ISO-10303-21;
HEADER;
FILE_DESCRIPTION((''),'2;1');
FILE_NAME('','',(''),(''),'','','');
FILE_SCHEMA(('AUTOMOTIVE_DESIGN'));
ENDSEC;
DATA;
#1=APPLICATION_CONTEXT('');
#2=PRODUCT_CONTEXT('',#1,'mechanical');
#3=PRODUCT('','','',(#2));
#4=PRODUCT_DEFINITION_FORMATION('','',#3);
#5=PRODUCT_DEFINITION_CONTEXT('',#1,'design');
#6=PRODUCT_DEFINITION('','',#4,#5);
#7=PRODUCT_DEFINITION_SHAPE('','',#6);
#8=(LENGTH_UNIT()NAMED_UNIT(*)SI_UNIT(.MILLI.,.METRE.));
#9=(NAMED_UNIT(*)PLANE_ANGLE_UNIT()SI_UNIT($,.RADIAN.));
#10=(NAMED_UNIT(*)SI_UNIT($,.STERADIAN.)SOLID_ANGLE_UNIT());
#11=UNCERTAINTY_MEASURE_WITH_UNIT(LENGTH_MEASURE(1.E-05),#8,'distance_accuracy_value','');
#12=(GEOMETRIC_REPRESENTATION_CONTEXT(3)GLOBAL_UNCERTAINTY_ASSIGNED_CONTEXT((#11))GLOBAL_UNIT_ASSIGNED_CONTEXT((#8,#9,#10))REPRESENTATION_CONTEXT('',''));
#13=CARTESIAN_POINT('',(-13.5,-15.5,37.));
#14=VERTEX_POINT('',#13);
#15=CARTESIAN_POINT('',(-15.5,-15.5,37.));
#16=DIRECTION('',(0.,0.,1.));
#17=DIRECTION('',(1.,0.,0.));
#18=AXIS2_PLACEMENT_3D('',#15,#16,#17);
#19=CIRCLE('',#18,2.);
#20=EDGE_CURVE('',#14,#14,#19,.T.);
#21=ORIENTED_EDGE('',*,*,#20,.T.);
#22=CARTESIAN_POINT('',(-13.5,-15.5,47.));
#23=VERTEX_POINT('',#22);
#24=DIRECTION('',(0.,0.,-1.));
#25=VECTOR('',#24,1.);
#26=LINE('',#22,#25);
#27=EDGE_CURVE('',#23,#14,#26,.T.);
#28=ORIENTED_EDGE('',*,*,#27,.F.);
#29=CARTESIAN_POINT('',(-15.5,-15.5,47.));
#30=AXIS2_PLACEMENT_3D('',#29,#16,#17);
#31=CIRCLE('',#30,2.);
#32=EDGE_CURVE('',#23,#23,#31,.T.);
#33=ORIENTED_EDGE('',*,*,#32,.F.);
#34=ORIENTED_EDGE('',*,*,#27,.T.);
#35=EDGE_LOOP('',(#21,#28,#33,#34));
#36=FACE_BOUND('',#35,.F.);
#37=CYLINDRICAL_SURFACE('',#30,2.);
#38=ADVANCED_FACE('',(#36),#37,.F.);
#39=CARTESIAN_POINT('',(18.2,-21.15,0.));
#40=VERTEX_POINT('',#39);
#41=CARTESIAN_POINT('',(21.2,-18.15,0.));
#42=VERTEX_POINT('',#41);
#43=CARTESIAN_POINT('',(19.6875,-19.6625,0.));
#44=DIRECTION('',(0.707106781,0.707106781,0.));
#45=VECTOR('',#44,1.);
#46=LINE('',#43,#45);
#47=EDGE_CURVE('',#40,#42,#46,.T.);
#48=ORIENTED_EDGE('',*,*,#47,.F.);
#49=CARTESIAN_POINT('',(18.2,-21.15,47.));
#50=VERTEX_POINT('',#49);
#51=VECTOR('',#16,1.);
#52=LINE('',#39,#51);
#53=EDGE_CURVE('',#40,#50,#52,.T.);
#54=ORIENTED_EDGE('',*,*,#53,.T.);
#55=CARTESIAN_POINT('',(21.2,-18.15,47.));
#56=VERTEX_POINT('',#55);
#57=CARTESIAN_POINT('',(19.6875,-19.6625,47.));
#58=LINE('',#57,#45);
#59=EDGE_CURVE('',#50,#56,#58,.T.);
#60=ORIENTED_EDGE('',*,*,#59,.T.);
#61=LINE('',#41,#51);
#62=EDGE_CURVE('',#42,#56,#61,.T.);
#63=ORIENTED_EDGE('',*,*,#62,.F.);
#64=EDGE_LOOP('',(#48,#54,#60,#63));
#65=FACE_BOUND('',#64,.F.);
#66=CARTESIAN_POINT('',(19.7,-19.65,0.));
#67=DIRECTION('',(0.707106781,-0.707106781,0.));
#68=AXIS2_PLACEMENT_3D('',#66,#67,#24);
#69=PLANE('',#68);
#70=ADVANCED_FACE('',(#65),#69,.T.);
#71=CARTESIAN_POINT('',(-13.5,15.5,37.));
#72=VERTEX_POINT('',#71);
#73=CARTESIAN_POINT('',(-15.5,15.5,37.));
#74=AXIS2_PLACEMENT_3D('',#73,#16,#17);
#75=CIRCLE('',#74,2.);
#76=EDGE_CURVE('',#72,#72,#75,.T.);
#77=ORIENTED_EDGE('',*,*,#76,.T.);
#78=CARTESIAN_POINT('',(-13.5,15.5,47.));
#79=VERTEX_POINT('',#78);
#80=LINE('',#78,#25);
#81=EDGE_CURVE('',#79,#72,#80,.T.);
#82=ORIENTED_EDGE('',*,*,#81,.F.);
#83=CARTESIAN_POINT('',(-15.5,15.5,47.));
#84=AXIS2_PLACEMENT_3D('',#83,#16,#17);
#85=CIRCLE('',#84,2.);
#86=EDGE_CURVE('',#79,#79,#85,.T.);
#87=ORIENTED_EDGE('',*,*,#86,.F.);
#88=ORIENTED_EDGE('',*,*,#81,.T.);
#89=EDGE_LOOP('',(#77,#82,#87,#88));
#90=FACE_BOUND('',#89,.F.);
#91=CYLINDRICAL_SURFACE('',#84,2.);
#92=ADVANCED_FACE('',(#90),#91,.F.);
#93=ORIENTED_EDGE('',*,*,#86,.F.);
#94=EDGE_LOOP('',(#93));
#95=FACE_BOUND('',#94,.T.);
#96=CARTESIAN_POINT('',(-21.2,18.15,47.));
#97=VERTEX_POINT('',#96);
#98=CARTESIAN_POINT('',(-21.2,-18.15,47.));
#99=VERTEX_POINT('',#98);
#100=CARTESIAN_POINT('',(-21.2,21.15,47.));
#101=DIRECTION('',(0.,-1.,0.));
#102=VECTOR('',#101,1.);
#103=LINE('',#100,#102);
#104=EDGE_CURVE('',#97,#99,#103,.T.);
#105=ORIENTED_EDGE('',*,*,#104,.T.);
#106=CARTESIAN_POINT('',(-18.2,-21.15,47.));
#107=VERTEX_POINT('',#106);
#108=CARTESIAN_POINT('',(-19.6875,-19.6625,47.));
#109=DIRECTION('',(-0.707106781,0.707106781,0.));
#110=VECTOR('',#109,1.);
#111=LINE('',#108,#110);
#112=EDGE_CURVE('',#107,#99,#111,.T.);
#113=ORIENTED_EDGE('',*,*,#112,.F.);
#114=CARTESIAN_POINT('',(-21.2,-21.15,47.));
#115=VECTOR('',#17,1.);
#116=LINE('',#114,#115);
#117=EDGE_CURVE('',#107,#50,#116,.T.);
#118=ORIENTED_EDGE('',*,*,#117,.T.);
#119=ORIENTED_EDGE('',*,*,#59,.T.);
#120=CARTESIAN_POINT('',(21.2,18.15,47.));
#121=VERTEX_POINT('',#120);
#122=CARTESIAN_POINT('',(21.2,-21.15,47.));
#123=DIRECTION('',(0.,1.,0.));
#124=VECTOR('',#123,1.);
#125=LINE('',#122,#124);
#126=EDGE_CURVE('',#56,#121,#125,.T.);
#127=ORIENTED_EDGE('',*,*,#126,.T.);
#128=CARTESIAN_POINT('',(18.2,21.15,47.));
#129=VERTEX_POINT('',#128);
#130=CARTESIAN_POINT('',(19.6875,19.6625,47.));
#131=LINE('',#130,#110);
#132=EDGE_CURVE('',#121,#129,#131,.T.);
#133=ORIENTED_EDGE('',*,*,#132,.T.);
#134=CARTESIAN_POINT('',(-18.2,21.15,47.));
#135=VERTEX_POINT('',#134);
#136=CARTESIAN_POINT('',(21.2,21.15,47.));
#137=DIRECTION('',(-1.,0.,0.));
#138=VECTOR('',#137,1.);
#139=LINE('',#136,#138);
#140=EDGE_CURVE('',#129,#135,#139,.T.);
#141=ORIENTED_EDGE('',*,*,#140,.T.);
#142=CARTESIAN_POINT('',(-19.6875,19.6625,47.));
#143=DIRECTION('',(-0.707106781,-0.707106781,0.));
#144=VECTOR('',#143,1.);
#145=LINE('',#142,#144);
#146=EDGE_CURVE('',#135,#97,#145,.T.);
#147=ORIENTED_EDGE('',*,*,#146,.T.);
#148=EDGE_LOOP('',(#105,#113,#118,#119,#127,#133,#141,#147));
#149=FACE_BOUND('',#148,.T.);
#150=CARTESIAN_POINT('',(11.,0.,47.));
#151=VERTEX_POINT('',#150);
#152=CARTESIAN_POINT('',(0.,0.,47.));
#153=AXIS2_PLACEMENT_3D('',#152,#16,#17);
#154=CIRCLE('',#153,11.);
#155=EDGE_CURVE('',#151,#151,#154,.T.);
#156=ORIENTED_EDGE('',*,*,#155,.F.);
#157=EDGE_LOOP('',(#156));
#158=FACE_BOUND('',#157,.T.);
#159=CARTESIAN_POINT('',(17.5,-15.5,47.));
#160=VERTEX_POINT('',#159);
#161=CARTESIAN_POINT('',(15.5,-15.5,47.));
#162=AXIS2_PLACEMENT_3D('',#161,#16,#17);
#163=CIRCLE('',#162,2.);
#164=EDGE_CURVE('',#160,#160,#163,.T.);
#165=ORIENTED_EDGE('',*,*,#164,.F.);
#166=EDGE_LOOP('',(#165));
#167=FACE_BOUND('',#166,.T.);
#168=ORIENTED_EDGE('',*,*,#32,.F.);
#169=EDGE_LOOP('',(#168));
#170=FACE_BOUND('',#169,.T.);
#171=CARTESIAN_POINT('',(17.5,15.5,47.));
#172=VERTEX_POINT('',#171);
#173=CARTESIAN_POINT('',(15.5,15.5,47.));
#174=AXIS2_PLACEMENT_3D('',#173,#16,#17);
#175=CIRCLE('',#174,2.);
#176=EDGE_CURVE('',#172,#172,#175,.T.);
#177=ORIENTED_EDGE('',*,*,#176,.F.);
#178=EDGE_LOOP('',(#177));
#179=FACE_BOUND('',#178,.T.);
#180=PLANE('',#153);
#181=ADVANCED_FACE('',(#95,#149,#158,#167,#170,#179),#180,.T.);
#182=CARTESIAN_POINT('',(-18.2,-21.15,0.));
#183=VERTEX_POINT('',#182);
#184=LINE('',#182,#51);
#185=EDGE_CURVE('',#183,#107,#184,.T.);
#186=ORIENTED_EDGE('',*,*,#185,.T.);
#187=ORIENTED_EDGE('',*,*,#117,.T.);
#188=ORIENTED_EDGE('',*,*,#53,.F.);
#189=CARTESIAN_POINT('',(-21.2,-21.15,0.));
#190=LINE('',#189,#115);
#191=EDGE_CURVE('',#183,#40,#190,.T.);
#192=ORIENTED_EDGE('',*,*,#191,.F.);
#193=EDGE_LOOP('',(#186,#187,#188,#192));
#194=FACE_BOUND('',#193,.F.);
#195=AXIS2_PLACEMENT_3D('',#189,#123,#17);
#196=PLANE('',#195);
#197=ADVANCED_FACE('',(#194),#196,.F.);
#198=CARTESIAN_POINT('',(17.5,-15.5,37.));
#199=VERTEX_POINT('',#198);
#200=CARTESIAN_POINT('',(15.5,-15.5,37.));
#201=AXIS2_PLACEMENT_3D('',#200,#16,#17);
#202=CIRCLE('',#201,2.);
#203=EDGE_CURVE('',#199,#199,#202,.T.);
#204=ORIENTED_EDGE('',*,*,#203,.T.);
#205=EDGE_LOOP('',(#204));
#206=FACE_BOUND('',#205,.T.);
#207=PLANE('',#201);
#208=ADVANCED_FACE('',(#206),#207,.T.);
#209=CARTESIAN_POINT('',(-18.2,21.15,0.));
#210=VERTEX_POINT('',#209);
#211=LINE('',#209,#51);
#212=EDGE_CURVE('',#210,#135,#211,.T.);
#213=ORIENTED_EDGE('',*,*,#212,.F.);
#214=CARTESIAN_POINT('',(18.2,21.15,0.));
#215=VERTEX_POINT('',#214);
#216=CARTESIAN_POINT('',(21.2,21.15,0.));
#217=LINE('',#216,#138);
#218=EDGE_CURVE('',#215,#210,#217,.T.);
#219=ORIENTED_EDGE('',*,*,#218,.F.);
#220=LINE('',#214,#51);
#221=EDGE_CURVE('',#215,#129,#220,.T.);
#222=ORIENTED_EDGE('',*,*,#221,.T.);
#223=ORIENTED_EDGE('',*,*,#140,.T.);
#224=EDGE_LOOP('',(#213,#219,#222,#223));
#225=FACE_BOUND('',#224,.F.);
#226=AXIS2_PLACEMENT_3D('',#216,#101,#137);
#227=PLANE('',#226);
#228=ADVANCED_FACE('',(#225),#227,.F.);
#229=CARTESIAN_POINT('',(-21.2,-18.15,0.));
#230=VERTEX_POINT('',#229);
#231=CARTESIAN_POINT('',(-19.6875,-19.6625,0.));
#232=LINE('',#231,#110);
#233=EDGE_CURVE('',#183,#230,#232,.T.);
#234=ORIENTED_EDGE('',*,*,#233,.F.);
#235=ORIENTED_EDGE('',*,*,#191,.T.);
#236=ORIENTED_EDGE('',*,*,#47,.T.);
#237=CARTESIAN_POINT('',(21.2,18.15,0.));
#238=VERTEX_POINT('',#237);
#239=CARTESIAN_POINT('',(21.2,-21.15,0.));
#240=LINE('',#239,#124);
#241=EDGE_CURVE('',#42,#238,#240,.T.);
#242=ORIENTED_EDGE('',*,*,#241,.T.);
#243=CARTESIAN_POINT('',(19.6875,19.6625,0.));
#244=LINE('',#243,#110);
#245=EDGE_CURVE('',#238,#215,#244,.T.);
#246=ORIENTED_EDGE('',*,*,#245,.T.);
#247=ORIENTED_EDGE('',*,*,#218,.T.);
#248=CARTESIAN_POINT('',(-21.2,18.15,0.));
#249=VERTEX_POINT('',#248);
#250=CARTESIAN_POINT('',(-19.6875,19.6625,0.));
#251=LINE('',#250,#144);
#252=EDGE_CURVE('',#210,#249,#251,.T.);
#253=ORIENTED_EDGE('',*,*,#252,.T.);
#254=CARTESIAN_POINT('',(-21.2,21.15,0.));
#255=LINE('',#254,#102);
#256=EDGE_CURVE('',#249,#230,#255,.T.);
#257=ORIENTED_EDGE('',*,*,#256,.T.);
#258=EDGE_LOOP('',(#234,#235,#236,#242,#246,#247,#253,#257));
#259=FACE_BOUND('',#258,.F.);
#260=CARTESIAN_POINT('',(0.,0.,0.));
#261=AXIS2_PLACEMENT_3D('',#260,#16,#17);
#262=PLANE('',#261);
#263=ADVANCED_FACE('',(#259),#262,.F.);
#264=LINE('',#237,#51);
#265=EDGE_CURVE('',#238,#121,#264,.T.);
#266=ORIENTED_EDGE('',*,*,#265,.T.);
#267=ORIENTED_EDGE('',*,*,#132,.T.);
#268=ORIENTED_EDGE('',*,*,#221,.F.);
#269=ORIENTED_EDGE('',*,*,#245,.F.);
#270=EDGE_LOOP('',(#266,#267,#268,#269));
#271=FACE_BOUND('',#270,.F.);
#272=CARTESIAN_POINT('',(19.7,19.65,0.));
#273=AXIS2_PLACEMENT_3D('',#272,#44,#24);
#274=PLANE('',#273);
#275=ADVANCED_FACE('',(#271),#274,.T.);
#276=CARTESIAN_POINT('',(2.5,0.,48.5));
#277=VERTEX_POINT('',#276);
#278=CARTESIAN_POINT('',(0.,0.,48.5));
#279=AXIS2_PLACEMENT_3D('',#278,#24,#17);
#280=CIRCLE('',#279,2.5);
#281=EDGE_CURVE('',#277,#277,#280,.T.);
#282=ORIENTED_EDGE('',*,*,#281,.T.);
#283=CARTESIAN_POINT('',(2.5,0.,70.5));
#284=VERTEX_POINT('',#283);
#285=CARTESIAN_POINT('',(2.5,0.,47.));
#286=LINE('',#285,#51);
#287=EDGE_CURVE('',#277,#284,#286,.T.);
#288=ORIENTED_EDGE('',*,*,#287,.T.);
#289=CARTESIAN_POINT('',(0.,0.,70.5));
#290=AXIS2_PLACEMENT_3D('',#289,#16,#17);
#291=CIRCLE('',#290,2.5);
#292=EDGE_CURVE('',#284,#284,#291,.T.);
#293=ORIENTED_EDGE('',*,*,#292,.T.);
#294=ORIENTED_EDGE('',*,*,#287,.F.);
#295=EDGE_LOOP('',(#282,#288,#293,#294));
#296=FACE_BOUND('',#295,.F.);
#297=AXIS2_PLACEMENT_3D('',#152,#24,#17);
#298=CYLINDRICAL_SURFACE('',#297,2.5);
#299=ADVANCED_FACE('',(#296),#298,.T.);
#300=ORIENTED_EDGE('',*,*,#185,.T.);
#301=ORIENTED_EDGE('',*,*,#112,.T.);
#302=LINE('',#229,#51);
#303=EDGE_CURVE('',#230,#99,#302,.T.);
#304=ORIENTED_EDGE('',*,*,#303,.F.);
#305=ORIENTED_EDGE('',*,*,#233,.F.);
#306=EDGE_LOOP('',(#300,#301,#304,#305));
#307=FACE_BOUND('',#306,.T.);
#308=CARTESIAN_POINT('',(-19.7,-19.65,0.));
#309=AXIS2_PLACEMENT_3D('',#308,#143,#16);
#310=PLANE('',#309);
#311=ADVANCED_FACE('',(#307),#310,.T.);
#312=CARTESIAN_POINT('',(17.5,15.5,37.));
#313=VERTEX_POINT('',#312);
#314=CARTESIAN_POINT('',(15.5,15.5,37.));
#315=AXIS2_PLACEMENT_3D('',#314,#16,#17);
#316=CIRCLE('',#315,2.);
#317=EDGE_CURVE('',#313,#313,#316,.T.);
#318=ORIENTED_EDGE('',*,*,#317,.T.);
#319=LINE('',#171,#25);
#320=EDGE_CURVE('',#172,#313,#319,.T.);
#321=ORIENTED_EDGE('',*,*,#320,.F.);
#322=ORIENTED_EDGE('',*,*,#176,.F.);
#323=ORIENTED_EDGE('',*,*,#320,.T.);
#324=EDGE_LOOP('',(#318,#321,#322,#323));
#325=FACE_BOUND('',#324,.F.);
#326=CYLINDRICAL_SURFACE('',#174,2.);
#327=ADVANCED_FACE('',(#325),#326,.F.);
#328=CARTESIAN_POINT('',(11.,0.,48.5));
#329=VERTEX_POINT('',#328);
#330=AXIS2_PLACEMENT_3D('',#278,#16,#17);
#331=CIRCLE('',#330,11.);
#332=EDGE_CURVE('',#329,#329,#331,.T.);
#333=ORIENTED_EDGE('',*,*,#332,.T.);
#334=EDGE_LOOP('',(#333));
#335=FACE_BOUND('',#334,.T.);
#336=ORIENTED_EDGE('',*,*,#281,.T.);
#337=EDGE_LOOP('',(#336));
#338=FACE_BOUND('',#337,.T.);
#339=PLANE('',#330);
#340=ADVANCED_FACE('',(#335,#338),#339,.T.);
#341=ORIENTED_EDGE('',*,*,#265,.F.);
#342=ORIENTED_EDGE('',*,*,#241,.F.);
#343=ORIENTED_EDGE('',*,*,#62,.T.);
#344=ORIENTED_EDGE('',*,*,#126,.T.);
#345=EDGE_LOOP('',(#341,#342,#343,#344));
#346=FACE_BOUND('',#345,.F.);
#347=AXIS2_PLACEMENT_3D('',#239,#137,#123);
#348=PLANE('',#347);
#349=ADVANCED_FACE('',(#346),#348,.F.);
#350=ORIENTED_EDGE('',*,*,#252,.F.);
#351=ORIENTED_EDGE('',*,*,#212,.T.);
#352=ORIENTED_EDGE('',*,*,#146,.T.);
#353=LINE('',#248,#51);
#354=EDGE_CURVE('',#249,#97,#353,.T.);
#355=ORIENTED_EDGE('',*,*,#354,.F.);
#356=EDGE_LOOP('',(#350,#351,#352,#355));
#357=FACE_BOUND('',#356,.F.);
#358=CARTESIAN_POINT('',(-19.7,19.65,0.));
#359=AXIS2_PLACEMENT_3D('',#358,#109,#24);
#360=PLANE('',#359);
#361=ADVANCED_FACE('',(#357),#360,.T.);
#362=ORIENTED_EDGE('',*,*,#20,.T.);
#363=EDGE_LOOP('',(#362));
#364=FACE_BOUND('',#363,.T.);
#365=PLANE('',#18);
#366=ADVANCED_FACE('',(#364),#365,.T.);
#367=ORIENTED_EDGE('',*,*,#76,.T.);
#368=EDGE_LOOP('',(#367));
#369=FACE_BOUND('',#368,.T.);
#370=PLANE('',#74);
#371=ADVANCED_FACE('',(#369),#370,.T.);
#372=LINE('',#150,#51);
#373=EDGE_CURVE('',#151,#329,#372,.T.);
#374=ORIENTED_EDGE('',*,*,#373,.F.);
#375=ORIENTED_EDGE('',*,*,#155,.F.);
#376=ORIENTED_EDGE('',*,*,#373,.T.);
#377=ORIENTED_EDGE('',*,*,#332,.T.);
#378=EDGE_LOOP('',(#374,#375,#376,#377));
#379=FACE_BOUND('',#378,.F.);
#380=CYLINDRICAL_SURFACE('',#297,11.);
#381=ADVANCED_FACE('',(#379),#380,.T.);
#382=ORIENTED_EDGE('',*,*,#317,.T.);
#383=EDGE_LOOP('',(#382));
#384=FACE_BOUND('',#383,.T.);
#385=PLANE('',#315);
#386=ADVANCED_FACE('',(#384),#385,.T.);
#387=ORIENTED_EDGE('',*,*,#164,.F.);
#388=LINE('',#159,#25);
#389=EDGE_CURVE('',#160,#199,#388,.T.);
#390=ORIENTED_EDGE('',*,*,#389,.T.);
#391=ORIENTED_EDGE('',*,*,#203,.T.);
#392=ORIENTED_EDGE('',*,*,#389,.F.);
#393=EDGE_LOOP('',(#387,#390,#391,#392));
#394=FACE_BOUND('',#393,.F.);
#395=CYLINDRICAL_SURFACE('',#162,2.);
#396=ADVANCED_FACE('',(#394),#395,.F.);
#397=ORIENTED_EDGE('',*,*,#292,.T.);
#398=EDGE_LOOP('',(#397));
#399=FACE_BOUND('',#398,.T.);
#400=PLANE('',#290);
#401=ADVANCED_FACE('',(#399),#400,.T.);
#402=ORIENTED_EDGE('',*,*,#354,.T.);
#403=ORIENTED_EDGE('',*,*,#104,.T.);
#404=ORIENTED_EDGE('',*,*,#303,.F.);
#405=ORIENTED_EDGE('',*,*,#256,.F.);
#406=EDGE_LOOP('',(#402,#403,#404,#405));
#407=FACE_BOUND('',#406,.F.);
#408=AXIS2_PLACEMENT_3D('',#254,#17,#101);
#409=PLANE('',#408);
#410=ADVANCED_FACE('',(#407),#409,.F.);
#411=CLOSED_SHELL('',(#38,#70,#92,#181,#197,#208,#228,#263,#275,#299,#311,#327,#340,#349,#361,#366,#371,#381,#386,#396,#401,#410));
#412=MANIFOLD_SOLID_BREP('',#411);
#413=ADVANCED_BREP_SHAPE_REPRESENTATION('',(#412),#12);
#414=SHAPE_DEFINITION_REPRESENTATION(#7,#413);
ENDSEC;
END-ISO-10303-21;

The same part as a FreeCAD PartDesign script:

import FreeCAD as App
import Part
import Sketcher
Q = App.Units.Quantity


def edges_at(feature, points):
    """Names of the edges that pass closest to the given points."""
    edges = feature.Shape.Edges
    near = lambda p: min(range(len(edges)), key=lambda i: edges[i].distToShape(Part.Vertex(*p))[0])
    return sorted({f"Edge{near(p) + 1}" for p in points})


def add_polygon(sketch, points):
    """Adds a closed chain of lines whose ends are joined by coincident constraints."""
    first, n = sketch.GeometryCount, len(points)
    for a, b in zip(points, points[1:] + points[:1]):
        sketch.addGeometry(Part.LineSegment(App.Vector(*a, 0), App.Vector(*b, 0)), False)
    for i in range(n):
        sketch.addConstraint(Sketcher.Constraint("Coincident", first + i, 2, first + (i + 1) % n, 1))

doc = App.newDocument("Part")
body = doc.addObject("PartDesign::Body", "Body")

# Sketch on XY plane
sketch1 = doc.addObject("Sketcher::SketchObject", "Sketch")
body.addObject(sketch1)
sketch1.AttachmentSupport = (doc.XY_Plane, [""])
sketch1.MapMode = "FlatFace"
add_polygon(sketch1, [(-21, 21), (-21, -21), (21, -21), (21, 21)])  # lines 0-3
sketch1.addConstraint([
    Sketcher.Constraint("Vertical", 0),
    Sketcher.Constraint("Horizontal", 1),
    Sketcher.Constraint("Vertical", 2),
    Sketcher.Constraint("Horizontal", 3),
    Sketcher.Constraint("Symmetric", 0, 2, 2, 2, -1, 1),
    Sketcher.Constraint("DistanceX", 1, 1, 1, 2, Q("42.4 mm")),
    Sketcher.Constraint("DistanceY", 0, 2, 0, 1, Q("42.3 mm")),
])
pad1 = doc.addObject("PartDesign::Pad", "Pad")
body.addObject(pad1)
pad1.Profile = sketch1
pad1.Length = 47
doc.recompute()

chamfer = doc.addObject("PartDesign::Chamfer", "Chamfer")
body.addObject(chamfer)
chamfer.Base = (pad1, edges_at(pad1, [
    (21.2, -21.15, 23.5),
    (-21.2, -21.15, 23.5),
    (-21.2, 21.15, 23.5),
    (21.2, 21.15, 23.5),
]))
chamfer.Size = 3

# Sketch on XY plane
sketch2 = doc.addObject("Sketcher::SketchObject", "Sketch001")
body.addObject(sketch2)
sketch2.AttachmentSupport = (doc.XY_Plane, [""])
sketch2.MapMode = "FlatFace"
sketch2.AttachmentOffset = App.Placement(App.Vector(0, 0, 47), App.Rotation())
sketch2.addGeometry(Part.Circle(App.Vector(0, 0, 0), App.Vector(0, 0, 1), 2.5), False)
sketch2.addConstraint([
    Sketcher.Constraint("Coincident", 0, 3, -1, 1),
    Sketcher.Constraint("Diameter", 0, Q("5 mm")),
])
pad2 = doc.addObject("PartDesign::Pad", "Pad001")
body.addObject(pad2)
pad2.Profile = sketch2
pad2.Length = 23.5

# Sketch on XY plane
sketch3 = doc.addObject("Sketcher::SketchObject", "Sketch002")
body.addObject(sketch3)
sketch3.AttachmentSupport = (doc.XY_Plane, [""])
sketch3.MapMode = "FlatFace"
sketch3.AttachmentOffset = App.Placement(App.Vector(0, 0, 47), App.Rotation())
sketch3.addGeometry([
    Part.Circle(App.Vector(-15.5, 15.5, 0), App.Vector(0, 0, 1), 2),
    Part.Circle(App.Vector(-15.5, -15.5, 0), App.Vector(0, 0, 1), 2),
    Part.Circle(App.Vector(15.5, -15.5, 0), App.Vector(0, 0, 1), 2),
    Part.Circle(App.Vector(15.5, 15.5, 0), App.Vector(0, 0, 1), 2),
], False)
sketch3.addConstraint([
    Sketcher.Constraint("Equal", 0, 1),
    Sketcher.Constraint("Equal", 1, 2),
    Sketcher.Constraint("Equal", 2, 3),
    Sketcher.Constraint("Symmetric", 0, 3, 2, 3, -1, 1),
    Sketcher.Constraint("Symmetric", 1, 3, 3, 3, -1, 1),
    Sketcher.Constraint("Symmetric", 1, 3, 2, 3, -2),
    Sketcher.Constraint("Diameter", 0, Q("4 mm")),
    Sketcher.Constraint("DistanceY", 1, 3, 0, 3, Q("31 mm")),
    Sketcher.Constraint("DistanceX", 1, 3, 2, 3, Q("31 mm")),
])
pocket1 = doc.addObject("PartDesign::Pocket", "Pocket")
body.addObject(pocket1)
pocket1.Profile = sketch3
pocket1.Length = 10

# Sketch on XY plane
sketch4 = doc.addObject("Sketcher::SketchObject", "Sketch003")
body.addObject(sketch4)
sketch4.AttachmentSupport = (doc.XY_Plane, [""])
sketch4.MapMode = "FlatFace"
sketch4.AttachmentOffset = App.Placement(App.Vector(0, 0, 47), App.Rotation())
sketch4.addGeometry(Part.Circle(App.Vector(0, 0, 0), App.Vector(0, 0, 1), 11), False)
sketch4.addConstraint([
    Sketcher.Constraint("Coincident", 0, 3, -1, 1),
    Sketcher.Constraint("Diameter", 0, Q("22 mm")),
])
pad3 = doc.addObject("PartDesign::Pad", "Pad002")
body.addObject(pad3)
pad3.Profile = sketch4
pad3.Length = 1.5

doc.recompute()
